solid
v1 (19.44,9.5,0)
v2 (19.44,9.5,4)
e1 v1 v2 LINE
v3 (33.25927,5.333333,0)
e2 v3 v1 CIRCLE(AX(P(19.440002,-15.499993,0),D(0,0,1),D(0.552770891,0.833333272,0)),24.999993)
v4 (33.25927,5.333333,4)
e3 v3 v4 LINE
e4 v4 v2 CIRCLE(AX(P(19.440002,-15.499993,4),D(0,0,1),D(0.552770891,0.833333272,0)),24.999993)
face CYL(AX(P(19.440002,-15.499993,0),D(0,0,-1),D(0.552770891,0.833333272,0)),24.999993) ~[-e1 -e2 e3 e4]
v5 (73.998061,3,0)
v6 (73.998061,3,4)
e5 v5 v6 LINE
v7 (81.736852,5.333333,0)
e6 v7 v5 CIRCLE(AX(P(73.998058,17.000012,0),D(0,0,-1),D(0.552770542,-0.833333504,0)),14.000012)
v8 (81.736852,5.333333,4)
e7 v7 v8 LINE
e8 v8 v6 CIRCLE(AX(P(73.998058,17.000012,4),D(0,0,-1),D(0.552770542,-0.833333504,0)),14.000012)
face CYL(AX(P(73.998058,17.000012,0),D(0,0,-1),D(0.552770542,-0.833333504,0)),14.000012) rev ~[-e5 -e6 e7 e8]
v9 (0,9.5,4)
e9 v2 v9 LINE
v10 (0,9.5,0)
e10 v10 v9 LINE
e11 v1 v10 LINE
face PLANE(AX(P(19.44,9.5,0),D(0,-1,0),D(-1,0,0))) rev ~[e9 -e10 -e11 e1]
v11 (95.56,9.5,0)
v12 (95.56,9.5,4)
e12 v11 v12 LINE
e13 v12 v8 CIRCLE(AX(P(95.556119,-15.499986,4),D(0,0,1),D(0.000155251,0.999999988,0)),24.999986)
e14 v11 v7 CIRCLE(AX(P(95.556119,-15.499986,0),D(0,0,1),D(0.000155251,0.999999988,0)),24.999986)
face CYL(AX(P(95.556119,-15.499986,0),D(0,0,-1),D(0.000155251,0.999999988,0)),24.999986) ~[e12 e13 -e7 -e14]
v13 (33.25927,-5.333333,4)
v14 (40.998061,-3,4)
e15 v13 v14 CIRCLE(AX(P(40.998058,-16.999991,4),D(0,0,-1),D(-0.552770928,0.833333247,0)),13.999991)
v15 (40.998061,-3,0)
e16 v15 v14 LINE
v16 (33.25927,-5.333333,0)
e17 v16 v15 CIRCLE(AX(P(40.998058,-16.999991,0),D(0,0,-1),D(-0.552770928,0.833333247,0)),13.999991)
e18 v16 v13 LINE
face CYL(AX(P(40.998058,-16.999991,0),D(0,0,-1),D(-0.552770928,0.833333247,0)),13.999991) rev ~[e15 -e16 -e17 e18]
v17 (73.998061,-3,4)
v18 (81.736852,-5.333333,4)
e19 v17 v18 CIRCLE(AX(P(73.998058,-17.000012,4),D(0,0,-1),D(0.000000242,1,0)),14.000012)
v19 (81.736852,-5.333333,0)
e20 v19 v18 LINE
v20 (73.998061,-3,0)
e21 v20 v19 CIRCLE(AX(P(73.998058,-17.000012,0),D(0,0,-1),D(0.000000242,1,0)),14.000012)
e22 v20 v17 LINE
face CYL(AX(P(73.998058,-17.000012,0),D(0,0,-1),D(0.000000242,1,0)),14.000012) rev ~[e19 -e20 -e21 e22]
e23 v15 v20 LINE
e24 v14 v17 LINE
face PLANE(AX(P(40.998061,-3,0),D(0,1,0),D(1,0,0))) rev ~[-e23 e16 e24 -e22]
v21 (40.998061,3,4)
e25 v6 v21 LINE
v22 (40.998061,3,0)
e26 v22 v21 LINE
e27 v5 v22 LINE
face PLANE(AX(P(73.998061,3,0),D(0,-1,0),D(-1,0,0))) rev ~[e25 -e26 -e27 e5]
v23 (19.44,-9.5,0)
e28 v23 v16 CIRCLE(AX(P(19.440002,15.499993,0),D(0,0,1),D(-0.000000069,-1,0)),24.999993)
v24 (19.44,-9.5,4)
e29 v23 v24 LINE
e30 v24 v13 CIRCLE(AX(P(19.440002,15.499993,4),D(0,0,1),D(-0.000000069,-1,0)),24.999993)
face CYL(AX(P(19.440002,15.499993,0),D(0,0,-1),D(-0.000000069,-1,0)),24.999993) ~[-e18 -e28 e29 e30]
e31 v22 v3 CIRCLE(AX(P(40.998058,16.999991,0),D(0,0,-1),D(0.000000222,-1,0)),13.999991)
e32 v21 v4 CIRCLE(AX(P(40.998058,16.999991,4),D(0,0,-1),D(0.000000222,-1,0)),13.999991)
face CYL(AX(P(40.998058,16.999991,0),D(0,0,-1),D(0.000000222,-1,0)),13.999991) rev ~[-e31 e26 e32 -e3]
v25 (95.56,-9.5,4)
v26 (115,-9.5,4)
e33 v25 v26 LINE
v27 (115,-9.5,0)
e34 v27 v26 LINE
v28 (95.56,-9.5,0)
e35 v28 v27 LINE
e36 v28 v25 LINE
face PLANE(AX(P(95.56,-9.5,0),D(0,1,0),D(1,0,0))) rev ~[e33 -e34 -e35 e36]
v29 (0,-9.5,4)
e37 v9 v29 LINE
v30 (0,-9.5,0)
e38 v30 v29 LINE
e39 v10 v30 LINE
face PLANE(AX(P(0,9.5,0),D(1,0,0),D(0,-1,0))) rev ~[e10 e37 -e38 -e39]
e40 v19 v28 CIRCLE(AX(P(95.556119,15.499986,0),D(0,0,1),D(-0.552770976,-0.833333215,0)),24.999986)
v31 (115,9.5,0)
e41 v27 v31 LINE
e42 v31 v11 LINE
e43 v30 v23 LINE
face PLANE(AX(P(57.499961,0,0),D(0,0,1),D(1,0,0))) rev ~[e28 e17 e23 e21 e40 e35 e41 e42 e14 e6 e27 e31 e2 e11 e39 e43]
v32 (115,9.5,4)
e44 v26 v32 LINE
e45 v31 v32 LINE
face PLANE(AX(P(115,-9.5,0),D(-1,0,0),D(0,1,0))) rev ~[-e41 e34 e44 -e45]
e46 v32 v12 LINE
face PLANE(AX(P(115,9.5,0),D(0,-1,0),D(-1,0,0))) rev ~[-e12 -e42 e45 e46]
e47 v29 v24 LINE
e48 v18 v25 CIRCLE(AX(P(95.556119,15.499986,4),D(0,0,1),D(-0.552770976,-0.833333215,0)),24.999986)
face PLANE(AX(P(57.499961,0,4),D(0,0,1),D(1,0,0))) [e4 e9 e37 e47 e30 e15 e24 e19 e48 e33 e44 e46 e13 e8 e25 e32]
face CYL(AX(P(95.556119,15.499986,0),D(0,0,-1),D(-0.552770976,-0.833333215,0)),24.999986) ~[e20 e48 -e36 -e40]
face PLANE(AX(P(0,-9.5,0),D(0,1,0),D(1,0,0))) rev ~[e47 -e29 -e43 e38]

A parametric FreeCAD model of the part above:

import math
import FreeCAD as App
import Part
import Sketcher
from FreeCAD import Vector
Q = App.Units.Quantity

doc = App.newDocument("Part")
body = doc.addObject("PartDesign::Body", "Body")

sketch1 = body.newObject("Sketcher::SketchObject", "Sketch")
sketch1.AttachmentSupport = (doc.getObject("XY_Plane"), [""])
sketch1.MapMode = "FlatFace"
sketch1.addGeometry([
    Part.LineSegment(Vector(0, 10, 0), Vector(0, -10, 0)),
    Part.LineSegment(Vector(0, -10, 0), Vector(19, -10, 0)),
    Part.ArcOfCircle(Part.Circle(Vector(19, 15, 0), Vector(0, 0, 1), 25), math.radians(-90), math.radians(-56)),
    Part.ArcOfCircle(Part.Circle(Vector(41, -17, 0), Vector(0, 0, 1), 14), math.radians(90), math.radians(124)),
    Part.LineSegment(Vector(41, -3, 0), Vector(74, -3, 0)),
    Part.ArcOfCircle(Part.Circle(Vector(74, -17, 0), Vector(0, 0, 1), 14), math.radians(56), math.radians(90)),
    Part.ArcOfCircle(Part.Circle(Vector(96, 15, 0), Vector(0, 0, 1), 25), math.radians(-124), math.radians(-90)),
    Part.LineSegment(Vector(96, -10, 0), Vector(115, -10, 0)),
    Part.LineSegment(Vector(115, -10, 0), Vector(115, 10, 0)),
    Part.LineSegment(Vector(115, 10, 0), Vector(96, 10, 0)),
    Part.ArcOfCircle(Part.Circle(Vector(96, -15, 0), Vector(0, 0, 1), 25), math.radians(90), math.radians(124)),
    Part.ArcOfCircle(Part.Circle(Vector(74, 17, 0), Vector(0, 0, 1), 14), math.radians(-90), math.radians(-56)),
    Part.LineSegment(Vector(74, 3, 0), Vector(41, 3, 0)),
    Part.ArcOfCircle(Part.Circle(Vector(41, 17, 0), Vector(0, 0, 1), 14), math.radians(-124), math.radians(-90)),
    Part.ArcOfCircle(Part.Circle(Vector(19, -15, 0), Vector(0, 0, 1), 25), math.radians(56), math.radians(90)),
    Part.LineSegment(Vector(19, 10, 0), Vector(0, 10, 0)),
], False)
sketch1.addConstraint([
    Sketcher.Constraint("Coincident", 0, 2, 1, 1),
    Sketcher.Constraint("Tangent", 1, 2, 2, 1),
    Sketcher.Constraint("Tangent", 2, 2, 3, 2),
    Sketcher.Constraint("Tangent", 3, 1, 4, 1),
    Sketcher.Constraint("Tangent", 4, 2, 5, 2),
    Sketcher.Constraint("Tangent", 5, 1, 6, 1),
    Sketcher.Constraint("Coincident", 6, 2, 7, 1),
    Sketcher.Constraint("Coincident", 7, 2, 8, 1),
    Sketcher.Constraint("Coincident", 8, 2, 9, 1),
    Sketcher.Constraint("Coincident", 9, 2, 10, 1),
    Sketcher.Constraint("Tangent", 10, 2, 11, 2),
    Sketcher.Constraint("Tangent", 11, 1, 12, 1),
    Sketcher.Constraint("Tangent", 12, 2, 13, 2),
    Sketcher.Constraint("Tangent", 13, 1, 14, 1),
    Sketcher.Constraint("Tangent", 14, 2, 15, 1),
    Sketcher.Constraint("Coincident", 15, 2, 0, 1),
    Sketcher.Constraint("Vertical", 0),
    Sketcher.Constraint("Horizontal", 1),
    Sketcher.Constraint("Horizontal", 4),
    Sketcher.Constraint("Horizontal", 7),
    Sketcher.Constraint("Vertical", 8),
    Sketcher.Constraint("Horizontal", 9),
    Sketcher.Constraint("Horizontal", 12),
    Sketcher.Constraint("Horizontal", 15),
    Sketcher.Constraint("Equal", 6, 10),
    Sketcher.Constraint("Equal", 5, 11),
    Sketcher.Constraint("Equal", 3, 13),
    Sketcher.Constraint("Equal", 2, 14),
    Sketcher.Constraint("Symmetric", 0, 2, 15, 2, -1, 1),
    Sketcher.Constraint("Symmetric", 6, 3, 10, 3, -1),
    Sketcher.Constraint("Symmetric", 3, 3, 13, 3, -1),
    Sketcher.Constraint("Horizontal", 2, 2, 5, 1),
    Sketcher.Constraint("Horizontal", 1, 2, 6, 2),
    Sketcher.Constraint("Vertical", 6, 2, 9, 2),
    Sketcher.Constraint("Equal", 1, 7),
    Sketcher.Constraint("DistanceX", 4, 1, 4, 2, Q("33 mm")),
    Sketcher.Constraint("DistanceY", 0, 2, 0, 1, Q("19 mm")),
    Sketcher.Constraint("DistanceY", 3, 1, -1, 1, Q("3 mm")),
    Sketcher.Constraint("DistanceX", -1, 1, 7, 2, Q("115 mm")),
    Sketcher.Constraint("DistanceX", 1, 1, 1, 2, Q("19.44 mm")),
    Sketcher.Constraint("DistanceY", 5, 3, 6, 3, Q("32.499998 mm")),
    Sketcher.Constraint("DistanceY", 2, 3, 13, 3, Q("1.499998 mm")),
    Sketcher.Constraint("Radius", 3, Q("13.999991 mm")),
])
pad1 = body.newObject("PartDesign::Pad", "Pad")
pad1.Profile = sketch1
pad1.Length = 4

doc.recompute()
